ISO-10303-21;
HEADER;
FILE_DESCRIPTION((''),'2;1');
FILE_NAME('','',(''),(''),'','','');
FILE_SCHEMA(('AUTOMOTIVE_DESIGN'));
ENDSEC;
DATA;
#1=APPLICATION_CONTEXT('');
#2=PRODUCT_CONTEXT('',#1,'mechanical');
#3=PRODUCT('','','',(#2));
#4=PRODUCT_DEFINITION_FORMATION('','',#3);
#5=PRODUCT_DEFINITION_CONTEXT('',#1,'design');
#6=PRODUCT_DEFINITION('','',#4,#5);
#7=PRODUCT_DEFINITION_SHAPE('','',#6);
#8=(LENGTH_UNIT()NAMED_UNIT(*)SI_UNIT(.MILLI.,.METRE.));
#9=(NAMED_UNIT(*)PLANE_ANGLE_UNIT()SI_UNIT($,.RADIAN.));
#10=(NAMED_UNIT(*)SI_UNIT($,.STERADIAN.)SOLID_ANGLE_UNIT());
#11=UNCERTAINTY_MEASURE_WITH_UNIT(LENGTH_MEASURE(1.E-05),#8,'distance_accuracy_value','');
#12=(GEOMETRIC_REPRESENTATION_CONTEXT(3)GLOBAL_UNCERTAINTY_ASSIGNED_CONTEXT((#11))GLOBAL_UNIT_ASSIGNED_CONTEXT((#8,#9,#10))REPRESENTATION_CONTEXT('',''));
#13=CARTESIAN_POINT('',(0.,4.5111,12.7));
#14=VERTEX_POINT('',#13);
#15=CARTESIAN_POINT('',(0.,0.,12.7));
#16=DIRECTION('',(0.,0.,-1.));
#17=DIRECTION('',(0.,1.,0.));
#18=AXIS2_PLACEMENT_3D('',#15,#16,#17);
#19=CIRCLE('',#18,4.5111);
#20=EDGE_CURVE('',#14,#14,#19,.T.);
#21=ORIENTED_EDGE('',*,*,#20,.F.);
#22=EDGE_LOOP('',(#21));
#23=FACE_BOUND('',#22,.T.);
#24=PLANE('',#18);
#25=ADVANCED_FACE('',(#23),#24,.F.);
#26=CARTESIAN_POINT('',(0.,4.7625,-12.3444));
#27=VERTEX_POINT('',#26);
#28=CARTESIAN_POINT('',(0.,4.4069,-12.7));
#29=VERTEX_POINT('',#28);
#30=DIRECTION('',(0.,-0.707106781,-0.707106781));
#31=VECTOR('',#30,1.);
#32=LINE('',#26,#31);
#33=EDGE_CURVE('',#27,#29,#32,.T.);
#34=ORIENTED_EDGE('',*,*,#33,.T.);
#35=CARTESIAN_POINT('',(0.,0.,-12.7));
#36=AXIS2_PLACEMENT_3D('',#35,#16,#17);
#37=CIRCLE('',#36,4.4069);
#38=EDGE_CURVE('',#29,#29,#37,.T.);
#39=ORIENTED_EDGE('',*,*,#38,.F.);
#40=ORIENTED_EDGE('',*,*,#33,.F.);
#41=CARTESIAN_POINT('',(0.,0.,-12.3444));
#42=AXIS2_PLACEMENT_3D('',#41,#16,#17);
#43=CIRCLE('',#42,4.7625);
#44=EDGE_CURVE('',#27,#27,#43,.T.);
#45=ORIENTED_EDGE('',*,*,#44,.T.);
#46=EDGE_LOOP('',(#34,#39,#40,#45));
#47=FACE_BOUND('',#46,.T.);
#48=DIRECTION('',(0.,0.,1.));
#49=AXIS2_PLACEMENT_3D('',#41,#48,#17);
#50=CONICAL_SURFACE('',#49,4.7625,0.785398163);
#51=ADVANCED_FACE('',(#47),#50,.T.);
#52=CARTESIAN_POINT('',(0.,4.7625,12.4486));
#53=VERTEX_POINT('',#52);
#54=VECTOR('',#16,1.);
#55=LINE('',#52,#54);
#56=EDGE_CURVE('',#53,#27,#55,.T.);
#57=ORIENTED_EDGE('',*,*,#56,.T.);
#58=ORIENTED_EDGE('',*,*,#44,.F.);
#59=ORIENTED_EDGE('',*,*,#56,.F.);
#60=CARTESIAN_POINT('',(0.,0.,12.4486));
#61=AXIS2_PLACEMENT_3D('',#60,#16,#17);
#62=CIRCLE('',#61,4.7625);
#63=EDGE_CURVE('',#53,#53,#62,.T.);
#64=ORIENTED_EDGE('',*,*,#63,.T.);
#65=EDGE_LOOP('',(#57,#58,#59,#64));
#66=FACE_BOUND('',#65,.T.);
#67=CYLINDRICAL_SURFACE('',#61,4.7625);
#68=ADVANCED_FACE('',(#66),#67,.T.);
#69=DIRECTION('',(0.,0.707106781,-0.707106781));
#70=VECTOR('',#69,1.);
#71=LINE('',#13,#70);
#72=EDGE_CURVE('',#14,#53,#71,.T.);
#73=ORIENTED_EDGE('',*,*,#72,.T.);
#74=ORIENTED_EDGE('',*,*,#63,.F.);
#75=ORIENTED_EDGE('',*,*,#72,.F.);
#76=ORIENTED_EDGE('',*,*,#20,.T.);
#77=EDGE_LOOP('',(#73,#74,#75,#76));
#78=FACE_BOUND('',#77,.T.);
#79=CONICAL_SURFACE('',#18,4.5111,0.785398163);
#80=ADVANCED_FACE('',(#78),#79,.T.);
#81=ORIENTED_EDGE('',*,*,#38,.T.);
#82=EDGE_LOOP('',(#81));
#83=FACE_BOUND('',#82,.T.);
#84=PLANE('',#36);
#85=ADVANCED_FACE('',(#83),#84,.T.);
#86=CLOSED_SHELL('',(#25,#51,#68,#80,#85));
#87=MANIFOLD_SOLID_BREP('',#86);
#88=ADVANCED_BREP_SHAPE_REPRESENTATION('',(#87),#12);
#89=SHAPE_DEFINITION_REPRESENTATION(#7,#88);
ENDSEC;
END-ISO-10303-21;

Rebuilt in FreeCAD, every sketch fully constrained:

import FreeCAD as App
import Part
import Sketcher
from FreeCAD import Vector
Q = App.Units.Quantity

doc = App.newDocument("Part")
params = doc.addObject("Spreadsheet::Sheet", "Params")
for row, (alias, value) in enumerate([
    ("sketch1_height", "1 in"),
    ("sketch1_length", "0.014 in"),
    ("revolution_angle", "360 deg"),
], start=1):
    params.set(f"A{row}", alias)
    params.set(f"B{row}", "=" + value)
    params.setAlias(f"B{row}", alias)

body = doc.addObject("PartDesign::Body", "Body")

sketch1 = body.newObject("Sketcher::SketchObject", "Sketch")
sketch1.AttachmentSupport = (doc.getObject("YZ_Plane"), [""])
sketch1.MapMode = "FlatFace"
sketch1.addGeometry(Part.LineSegment(Vector(0, 12.7, 0), Vector(0, -12.7, 0)), False)
sketch1.addGeometry(Part.LineSegment(Vector(0, -12.7, 0), Vector(4.41, -12.7, 0)), False)
sketch1.addGeometry(Part.LineSegment(Vector(4.41, -12.7, 0), Vector(4.76, -12.34, 0)), False)
sketch1.addGeometry(Part.LineSegment(Vector(4.76, -12.34, 0), Vector(4.76, 12.45, 0)), False)
sketch1.addGeometry(Part.LineSegment(Vector(4.76, 12.45, 0), Vector(4.51, 12.7, 0)), False)
sketch1.addGeometry(Part.LineSegment(Vector(4.51, 12.7, 0), Vector(0, 12.7, 0)), False)
sketch1.addConstraint(Sketcher.Constraint("Coincident", 0, 2, 1, 1))
sketch1.addConstraint(Sketcher.Constraint("Coincident", 1, 2, 2, 1))
sketch1.addConstraint(Sketcher.Constraint("Coincident", 2, 2, 3, 1))
sketch1.addConstraint(Sketcher.Constraint("Coincident", 3, 2, 4, 1))
sketch1.addConstraint(Sketcher.Constraint("Coincident", 4, 2, 5, 1))
sketch1.addConstraint(Sketcher.Constraint("Coincident", 5, 2, 0, 1))
sketch1.addConstraint(Sketcher.Constraint("Vertical", 0))
sketch1.addConstraint(Sketcher.Constraint("Horizontal", 1))
sketch1.addConstraint(Sketcher.Constraint("Vertical", 3))
sketch1.addConstraint(Sketcher.Constraint("Horizontal", 5))
sketch1.addConstraint(Sketcher.Constraint("Symmetric", 0, 2, 5, 2, -1, 1))
sketch1.addConstraint(Sketcher.Constraint("Perpendicular", 2, 4))
sketch1.addConstraint(Sketcher.Constraint("DistanceY", 0, 2, 0, 1, Q("1 in")))
sketch1.addConstraint(Sketcher.Constraint("Angle", 2, Q("45 deg")))
sketch1.addConstraint(Sketcher.Constraint("Distance", 4, Q("0.014 in")))
sketch1.addConstraint(Sketcher.Constraint("DistanceX", 1, 1, 1, 2, Q("0.1735 in")))
sketch1.addConstraint(Sketcher.Constraint("DistanceX", 5, 2, 5, 1, Q("0.1776 in")))
sketch1.setExpression("Constraints[12]", "Params.sketch1_height")
sketch1.setExpression("Constraints[14]", "Params.sketch1_length")
revolution = body.newObject("PartDesign::Revolution", "Revolution")
revolution.Profile = sketch1
revolution.ReferenceAxis = (sketch1, ["V_Axis"])
revolution.setExpression("Angle", "Params.revolution_angle")

doc.recompute()
